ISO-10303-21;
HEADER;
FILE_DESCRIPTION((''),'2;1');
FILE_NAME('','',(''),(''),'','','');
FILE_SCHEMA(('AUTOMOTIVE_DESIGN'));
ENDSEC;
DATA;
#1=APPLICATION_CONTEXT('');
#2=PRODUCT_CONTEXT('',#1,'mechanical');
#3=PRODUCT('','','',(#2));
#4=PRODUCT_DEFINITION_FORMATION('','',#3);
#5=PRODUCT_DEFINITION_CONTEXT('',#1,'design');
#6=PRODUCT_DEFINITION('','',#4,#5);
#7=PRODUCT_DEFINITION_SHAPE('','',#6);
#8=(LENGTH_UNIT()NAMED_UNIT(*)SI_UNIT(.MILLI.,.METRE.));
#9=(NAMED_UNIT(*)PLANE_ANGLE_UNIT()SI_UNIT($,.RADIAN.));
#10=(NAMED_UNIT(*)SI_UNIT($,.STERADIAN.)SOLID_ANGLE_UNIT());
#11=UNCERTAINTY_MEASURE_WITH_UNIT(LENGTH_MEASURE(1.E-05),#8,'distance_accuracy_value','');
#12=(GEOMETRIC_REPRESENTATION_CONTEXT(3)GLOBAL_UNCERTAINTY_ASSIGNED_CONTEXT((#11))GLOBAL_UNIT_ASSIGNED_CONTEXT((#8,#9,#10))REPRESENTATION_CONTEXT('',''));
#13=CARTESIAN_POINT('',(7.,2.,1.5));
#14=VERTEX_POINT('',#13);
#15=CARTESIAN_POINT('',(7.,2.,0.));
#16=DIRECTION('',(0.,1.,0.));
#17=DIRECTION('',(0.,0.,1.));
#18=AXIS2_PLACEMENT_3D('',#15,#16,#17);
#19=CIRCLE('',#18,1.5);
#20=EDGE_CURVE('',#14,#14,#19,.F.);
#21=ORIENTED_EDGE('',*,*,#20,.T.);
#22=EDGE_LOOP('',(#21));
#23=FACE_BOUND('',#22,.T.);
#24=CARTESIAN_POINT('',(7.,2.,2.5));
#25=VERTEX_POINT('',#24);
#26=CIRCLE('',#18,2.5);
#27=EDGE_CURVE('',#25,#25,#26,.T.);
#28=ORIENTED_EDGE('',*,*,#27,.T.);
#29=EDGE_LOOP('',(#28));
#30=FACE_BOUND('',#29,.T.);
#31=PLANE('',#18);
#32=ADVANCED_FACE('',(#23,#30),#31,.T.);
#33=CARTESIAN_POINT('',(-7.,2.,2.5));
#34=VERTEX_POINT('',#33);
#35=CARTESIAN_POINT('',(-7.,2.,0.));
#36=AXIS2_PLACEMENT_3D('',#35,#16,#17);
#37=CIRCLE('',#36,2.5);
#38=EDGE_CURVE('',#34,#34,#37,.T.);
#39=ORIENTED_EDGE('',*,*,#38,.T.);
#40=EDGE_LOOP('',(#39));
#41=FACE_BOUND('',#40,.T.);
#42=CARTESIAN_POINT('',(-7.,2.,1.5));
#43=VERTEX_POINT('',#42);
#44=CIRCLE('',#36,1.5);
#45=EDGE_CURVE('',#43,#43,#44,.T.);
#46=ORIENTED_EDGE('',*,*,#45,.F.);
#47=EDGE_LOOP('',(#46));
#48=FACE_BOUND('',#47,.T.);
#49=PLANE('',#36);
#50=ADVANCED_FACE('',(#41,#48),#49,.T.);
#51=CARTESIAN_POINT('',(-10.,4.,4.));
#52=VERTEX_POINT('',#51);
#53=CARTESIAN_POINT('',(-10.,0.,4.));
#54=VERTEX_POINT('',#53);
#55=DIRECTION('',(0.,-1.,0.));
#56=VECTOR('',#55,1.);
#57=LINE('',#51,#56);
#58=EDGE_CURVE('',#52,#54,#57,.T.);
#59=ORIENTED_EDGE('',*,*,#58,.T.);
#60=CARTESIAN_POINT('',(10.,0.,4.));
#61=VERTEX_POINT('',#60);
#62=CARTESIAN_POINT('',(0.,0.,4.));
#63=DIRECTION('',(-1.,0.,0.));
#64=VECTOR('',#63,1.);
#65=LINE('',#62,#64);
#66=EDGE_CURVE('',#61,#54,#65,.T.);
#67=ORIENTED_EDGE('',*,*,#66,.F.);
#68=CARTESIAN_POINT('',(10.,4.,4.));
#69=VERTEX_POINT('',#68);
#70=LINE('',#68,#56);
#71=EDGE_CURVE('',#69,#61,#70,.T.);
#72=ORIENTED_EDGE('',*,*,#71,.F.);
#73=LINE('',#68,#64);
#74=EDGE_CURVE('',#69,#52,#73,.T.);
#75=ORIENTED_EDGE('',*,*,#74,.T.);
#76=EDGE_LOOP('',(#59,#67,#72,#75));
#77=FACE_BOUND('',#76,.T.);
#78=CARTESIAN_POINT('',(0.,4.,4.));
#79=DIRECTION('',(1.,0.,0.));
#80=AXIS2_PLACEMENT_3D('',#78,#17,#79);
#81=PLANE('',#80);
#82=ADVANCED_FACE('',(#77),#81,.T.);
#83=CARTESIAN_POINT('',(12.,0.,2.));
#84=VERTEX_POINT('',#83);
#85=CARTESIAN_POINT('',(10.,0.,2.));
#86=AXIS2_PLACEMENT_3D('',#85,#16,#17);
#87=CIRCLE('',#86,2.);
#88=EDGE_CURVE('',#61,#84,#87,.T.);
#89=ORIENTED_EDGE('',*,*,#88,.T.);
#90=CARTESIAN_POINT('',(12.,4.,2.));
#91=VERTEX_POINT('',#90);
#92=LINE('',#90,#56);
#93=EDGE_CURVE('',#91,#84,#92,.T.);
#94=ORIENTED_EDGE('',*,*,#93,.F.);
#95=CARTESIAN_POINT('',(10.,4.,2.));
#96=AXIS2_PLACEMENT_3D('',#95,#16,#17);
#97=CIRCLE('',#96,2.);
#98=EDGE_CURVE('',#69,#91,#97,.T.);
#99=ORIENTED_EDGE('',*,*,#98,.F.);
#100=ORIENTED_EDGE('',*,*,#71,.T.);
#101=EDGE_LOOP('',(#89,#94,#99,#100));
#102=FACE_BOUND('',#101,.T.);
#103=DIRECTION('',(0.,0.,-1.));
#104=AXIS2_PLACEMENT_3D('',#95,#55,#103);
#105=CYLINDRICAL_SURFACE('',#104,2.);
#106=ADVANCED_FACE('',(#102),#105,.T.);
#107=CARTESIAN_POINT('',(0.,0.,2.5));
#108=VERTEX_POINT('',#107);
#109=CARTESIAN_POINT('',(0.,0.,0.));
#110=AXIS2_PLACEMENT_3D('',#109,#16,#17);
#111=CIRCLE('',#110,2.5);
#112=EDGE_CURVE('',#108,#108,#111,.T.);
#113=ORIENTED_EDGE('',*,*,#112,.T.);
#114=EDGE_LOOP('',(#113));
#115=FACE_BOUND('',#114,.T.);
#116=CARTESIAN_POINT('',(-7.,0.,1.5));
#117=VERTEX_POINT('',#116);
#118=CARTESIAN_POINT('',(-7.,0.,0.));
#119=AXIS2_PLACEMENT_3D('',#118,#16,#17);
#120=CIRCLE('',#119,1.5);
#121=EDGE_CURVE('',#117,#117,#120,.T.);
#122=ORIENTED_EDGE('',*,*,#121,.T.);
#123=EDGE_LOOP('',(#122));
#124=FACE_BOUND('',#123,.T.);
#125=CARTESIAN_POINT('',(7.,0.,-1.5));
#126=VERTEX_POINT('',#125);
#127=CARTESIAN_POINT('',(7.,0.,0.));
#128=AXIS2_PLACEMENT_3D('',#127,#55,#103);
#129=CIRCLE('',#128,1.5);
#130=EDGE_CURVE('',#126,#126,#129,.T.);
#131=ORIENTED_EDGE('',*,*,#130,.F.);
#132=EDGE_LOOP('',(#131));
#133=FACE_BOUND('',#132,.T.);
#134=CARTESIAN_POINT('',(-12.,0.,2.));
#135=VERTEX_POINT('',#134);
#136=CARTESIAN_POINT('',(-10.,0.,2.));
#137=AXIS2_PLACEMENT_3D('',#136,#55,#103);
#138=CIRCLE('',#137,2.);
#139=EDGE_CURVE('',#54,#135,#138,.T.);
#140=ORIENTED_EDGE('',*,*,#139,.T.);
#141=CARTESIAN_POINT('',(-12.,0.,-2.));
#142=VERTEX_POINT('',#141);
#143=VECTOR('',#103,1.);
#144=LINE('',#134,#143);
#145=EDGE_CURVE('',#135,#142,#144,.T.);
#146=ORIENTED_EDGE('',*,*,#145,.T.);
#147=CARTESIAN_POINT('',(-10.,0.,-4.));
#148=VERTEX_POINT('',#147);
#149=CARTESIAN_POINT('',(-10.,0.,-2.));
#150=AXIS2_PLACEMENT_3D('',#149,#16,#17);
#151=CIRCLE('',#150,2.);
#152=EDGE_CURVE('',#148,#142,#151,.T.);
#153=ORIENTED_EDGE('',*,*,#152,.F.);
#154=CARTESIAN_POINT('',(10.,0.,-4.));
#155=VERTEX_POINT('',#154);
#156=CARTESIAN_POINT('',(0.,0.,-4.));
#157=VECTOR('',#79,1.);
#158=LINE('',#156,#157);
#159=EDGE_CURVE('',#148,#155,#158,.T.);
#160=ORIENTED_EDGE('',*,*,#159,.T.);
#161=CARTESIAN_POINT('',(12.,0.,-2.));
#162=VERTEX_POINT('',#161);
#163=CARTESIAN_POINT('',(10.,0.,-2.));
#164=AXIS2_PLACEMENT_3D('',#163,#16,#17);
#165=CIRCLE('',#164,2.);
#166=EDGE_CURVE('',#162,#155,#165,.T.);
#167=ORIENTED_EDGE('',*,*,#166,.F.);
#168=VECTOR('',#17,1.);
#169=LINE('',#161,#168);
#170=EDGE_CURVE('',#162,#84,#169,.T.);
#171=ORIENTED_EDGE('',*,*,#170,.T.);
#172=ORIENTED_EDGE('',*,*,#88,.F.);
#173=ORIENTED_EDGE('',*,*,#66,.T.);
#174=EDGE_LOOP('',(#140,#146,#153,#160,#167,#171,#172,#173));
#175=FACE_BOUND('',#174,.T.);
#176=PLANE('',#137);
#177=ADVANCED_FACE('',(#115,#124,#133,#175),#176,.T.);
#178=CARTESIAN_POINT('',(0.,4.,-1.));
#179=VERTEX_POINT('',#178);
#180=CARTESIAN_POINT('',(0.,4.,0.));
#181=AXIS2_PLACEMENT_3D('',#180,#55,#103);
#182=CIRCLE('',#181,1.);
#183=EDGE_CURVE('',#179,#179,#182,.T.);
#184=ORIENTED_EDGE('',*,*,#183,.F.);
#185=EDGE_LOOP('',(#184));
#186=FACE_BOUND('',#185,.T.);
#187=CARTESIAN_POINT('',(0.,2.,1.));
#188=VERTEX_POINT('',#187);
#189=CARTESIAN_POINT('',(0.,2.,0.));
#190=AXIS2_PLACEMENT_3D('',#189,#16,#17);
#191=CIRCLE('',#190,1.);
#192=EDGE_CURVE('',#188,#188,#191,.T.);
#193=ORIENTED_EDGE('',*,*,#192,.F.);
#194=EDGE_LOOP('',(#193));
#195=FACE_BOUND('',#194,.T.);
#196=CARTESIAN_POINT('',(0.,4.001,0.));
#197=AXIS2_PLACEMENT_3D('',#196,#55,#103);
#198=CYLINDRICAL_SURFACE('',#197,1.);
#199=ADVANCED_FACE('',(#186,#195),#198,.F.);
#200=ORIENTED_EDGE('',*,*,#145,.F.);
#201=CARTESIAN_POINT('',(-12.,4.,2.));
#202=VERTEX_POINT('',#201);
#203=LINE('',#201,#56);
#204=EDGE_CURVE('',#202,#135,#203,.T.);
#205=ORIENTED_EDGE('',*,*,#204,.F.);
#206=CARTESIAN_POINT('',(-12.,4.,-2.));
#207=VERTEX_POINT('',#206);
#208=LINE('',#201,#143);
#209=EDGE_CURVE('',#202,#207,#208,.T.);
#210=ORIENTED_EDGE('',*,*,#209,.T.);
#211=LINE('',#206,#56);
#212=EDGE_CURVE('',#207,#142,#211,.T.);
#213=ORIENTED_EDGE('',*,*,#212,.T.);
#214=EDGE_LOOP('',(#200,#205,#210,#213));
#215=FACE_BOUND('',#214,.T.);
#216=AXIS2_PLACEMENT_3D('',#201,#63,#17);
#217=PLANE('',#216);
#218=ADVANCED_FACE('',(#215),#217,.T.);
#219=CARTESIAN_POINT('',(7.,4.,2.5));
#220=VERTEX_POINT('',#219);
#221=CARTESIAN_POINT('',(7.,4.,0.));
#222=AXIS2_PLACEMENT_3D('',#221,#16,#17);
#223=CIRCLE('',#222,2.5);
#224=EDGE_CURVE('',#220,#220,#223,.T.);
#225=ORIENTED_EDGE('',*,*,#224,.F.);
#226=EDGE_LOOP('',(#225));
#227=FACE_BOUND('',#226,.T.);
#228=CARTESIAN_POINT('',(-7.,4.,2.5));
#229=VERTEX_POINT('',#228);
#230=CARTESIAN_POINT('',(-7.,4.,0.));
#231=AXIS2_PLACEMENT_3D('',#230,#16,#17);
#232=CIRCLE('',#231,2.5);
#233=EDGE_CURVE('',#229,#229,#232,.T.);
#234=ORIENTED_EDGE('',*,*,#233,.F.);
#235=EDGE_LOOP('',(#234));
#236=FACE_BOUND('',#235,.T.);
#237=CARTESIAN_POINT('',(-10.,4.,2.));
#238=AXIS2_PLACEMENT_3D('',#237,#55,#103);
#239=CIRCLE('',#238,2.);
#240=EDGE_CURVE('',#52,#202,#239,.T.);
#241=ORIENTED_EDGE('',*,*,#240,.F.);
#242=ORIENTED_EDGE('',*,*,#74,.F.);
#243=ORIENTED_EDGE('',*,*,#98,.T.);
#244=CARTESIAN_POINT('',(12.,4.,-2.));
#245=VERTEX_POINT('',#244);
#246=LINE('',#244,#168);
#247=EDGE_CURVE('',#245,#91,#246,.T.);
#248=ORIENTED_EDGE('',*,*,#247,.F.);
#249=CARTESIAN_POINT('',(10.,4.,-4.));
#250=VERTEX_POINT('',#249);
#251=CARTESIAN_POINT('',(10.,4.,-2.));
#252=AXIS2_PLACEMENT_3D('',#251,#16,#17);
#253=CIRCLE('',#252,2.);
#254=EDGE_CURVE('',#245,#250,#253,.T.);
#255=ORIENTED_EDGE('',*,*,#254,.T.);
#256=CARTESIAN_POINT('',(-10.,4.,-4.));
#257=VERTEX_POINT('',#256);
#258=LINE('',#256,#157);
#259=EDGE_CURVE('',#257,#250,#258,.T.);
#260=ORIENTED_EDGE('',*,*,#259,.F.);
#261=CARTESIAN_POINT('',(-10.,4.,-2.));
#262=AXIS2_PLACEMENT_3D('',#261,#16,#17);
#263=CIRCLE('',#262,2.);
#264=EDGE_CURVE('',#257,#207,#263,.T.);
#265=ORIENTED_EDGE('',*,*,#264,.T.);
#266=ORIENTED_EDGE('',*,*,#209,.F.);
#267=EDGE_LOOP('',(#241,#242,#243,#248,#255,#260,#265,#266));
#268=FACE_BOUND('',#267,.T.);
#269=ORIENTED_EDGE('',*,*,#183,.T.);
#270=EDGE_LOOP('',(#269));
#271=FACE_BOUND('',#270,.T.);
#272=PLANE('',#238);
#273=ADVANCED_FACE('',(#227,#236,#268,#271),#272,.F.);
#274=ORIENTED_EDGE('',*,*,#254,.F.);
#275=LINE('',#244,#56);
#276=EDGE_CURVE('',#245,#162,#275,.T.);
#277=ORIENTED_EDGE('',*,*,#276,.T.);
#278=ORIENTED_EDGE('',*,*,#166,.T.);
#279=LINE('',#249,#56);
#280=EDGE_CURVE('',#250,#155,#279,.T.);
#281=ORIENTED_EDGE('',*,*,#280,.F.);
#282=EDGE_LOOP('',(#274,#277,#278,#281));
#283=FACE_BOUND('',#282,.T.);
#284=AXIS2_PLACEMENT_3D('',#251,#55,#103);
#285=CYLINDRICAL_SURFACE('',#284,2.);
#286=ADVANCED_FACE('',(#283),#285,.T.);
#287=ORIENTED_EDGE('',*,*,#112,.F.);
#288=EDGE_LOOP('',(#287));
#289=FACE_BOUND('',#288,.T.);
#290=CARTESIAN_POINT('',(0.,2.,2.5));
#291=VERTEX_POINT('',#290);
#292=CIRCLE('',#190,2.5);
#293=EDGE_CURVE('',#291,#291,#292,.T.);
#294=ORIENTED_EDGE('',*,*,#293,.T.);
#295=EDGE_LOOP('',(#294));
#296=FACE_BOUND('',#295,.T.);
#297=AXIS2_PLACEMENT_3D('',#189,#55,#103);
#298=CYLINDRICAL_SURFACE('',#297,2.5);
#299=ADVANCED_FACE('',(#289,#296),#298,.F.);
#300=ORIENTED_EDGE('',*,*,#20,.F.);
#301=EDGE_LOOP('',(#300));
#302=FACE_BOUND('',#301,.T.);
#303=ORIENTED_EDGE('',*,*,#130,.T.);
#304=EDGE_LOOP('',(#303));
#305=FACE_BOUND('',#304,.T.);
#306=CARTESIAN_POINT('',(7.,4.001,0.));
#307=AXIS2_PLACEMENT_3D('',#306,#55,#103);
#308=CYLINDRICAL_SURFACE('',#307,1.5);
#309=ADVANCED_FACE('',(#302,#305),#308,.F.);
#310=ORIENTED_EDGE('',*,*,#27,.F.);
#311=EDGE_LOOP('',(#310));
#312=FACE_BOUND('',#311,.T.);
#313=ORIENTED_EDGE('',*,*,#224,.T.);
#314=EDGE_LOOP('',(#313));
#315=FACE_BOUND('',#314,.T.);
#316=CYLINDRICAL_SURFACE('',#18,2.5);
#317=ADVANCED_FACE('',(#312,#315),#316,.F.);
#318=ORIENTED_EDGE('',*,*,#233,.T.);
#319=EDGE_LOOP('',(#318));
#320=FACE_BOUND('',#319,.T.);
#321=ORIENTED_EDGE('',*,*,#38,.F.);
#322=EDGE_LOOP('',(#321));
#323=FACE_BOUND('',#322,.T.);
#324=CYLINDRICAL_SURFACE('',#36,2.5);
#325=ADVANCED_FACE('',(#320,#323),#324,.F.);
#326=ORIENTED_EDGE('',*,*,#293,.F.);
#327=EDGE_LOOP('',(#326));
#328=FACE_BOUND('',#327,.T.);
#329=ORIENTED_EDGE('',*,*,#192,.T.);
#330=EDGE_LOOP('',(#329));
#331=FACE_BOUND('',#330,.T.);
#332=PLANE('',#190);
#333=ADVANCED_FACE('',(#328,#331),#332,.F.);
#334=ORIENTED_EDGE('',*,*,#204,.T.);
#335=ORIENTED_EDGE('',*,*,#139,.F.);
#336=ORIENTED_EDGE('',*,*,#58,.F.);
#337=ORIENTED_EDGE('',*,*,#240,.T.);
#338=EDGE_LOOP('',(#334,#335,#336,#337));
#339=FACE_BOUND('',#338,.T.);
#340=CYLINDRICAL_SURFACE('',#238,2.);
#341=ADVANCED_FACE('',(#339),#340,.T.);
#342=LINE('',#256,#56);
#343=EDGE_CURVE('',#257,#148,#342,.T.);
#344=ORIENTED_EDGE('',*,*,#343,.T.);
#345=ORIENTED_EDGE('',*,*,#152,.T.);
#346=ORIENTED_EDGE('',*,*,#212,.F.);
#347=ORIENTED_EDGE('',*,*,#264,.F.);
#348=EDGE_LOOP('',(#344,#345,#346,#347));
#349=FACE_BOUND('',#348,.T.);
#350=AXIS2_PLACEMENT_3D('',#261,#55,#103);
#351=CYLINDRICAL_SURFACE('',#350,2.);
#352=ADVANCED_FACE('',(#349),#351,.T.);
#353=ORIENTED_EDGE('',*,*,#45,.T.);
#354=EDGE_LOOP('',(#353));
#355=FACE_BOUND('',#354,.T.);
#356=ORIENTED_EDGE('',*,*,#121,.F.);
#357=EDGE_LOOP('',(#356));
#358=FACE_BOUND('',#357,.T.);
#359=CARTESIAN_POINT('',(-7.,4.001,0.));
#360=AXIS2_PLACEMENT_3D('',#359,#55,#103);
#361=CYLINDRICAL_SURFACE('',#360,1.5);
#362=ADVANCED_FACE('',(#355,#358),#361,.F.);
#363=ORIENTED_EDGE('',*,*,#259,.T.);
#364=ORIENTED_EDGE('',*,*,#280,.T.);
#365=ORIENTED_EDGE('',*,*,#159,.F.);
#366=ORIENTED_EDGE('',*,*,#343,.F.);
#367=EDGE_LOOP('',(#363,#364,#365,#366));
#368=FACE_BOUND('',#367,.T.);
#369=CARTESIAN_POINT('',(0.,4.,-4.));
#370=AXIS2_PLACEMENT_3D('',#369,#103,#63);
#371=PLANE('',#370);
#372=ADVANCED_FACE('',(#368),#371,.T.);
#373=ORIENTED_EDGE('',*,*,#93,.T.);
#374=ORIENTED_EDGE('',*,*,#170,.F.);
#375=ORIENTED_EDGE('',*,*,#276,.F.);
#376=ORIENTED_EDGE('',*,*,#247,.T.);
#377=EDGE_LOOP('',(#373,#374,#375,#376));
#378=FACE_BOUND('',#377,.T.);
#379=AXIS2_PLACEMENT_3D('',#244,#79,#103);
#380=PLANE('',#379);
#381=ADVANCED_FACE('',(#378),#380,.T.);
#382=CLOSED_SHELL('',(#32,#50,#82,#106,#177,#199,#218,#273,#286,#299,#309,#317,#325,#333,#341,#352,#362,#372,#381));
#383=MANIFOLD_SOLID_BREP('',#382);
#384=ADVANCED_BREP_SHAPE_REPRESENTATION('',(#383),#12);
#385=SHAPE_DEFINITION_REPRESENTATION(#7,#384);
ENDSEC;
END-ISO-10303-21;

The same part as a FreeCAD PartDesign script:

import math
import FreeCAD as App
import Part
import Sketcher

V = App.Vector

doc = App.newDocument("Part")
body = doc.addObject("PartDesign::Body", "Body")

sketch1 = body.newObject("Sketcher::SketchObject", "Sketch")
sketch1.AttachmentSupport = (doc.getObject("XZ_Plane"), [""])
sketch1.MapMode = "FlatFace"
sketch1.addGeometry(Part.ArcOfCircle(Part.Circle(V(10, -2, 0), V(0, 0, 1), 2), math.radians(-90), math.radians(0)), False)
sketch1.addGeometry(Part.LineSegment(V(10, -4, 0), V(-10, -4, 0)), False)
sketch1.addGeometry(Part.ArcOfCircle(Part.Circle(V(-10, -2, 0), V(0, 0, 1), 2), math.radians(-180), math.radians(-90)), False)
sketch1.addGeometry(Part.LineSegment(V(-12, -2, 0), V(-12, 2, 0)), False)
sketch1.addGeometry(Part.ArcOfCircle(Part.Circle(V(-10, 2, 0), V(0, 0, 1), 2), math.radians(90), math.radians(180)), False)
sketch1.addGeometry(Part.LineSegment(V(-10, 4, 0), V(10, 4, 0)), False)
sketch1.addGeometry(Part.ArcOfCircle(Part.Circle(V(10, 2, 0), V(0, 0, 1), 2), math.radians(0), math.radians(90)), False)
sketch1.addGeometry(Part.LineSegment(V(12, 2, 0), V(12, -2, 0)), False)
sketch1.addConstraint(Sketcher.Constraint("Tangent", 0, 1, 1, 1))
sketch1.addConstraint(Sketcher.Constraint("Tangent", 1, 2, 2, 2))
sketch1.addConstraint(Sketcher.Constraint("Tangent", 2, 1, 3, 1))
sketch1.addConstraint(Sketcher.Constraint("Tangent", 3, 2, 4, 2))
sketch1.addConstraint(Sketcher.Constraint("Tangent", 4, 1, 5, 1))
sketch1.addConstraint(Sketcher.Constraint("Tangent", 5, 2, 6, 2))
sketch1.addConstraint(Sketcher.Constraint("Tangent", 6, 1, 7, 1))
sketch1.addConstraint(Sketcher.Constraint("Tangent", 7, 2, 0, 2))
sketch1.addConstraint(Sketcher.Constraint("Horizontal", 1))
sketch1.addConstraint(Sketcher.Constraint("Vertical", 3))
sketch1.addConstraint(Sketcher.Constraint("Horizontal", 5))
sketch1.addConstraint(Sketcher.Constraint("Vertical", 7))
sketch1.addConstraint(Sketcher.Constraint("Equal", 0, 2))
sketch1.addConstraint(Sketcher.Constraint("Equal", 2, 4))
sketch1.addConstraint(Sketcher.Constraint("Equal", 4, 6))
sketch1.addConstraint(Sketcher.Constraint("Symmetric", 0, 3, 4, 3, -1, 1))
sketch1.addConstraint(Sketcher.Constraint("Radius", 0, 2.0))
sketch1.addConstraint(Sketcher.Constraint("DistanceX", 1, 2, 1, 1, 20.0))
sketch1.addConstraint(Sketcher.Constraint("DistanceY", 3, 1, 3, 2, 4.0))
pad1 = body.newObject("PartDesign::Pad", "Pad")
pad1.Profile = sketch1
pad1.Length = 4
pad1.Reversed = True

sketch2 = body.newObject("Sketcher::SketchObject", "Sketch001")
sketch2.AttachmentSupport = (doc.getObject("XZ_Plane"), [""])
sketch2.MapMode = "FlatFace"
sketch2.addGeometry(Part.Circle(V(0, 0, 0), V(0, 0, 1), 1), False)
sketch2.addConstraint(Sketcher.Constraint("Coincident", 0, 3, -1, 1))
sketch2.addConstraint(Sketcher.Constraint("Diameter", 0, 2.0))
pocket1 = body.newObject("PartDesign::Pocket", "Pocket")
pocket1.Profile = sketch2
pocket1.Type = "UpToFirst"

sketch3 = body.newObject("Sketcher::SketchObject", "Sketch002")
sketch3.AttachmentSupport = (doc.getObject("XZ_Plane"), [""])
sketch3.MapMode = "FlatFace"
sketch3.addGeometry(Part.Circle(V(-7, 0, 0), V(0, 0, 1), 1.5), False)
sketch3.addConstraint(Sketcher.Constraint("PointOnObject", 0, 3, -1))
sketch3.addConstraint(Sketcher.Constraint("Diameter", 0, 3.0))
sketch3.addConstraint(Sketcher.Constraint("DistanceX", 0, 3, -1, 1, 7.0))
pocket2 = body.newObject("PartDesign::Pocket", "Pocket001")
pocket2.Profile = sketch3
pocket2.Type = "UpToFirst"

sketch4 = body.newObject("Sketcher::SketchObject", "Sketch003")
sketch4.AttachmentSupport = (doc.getObject("XZ_Plane"), [""])
sketch4.MapMode = "FlatFace"
sketch4.addGeometry(Part.Circle(V(7, 0, 0), V(0, 0, 1), 1.5), False)
sketch4.addConstraint(Sketcher.Constraint("PointOnObject", 0, 3, -1))
sketch4.addConstraint(Sketcher.Constraint("Diameter", 0, 3.0))
sketch4.addConstraint(Sketcher.Constraint("DistanceX", -1, 1, 0, 3, 7.0))
pocket3 = body.newObject("PartDesign::Pocket", "Pocket002")
pocket3.Profile = sketch4
pocket3.Type = "UpToFirst"

sketch5 = body.newObject("Sketcher::SketchObject", "Sketch004")
sketch5.AttachmentSupport = (doc.getObject("XZ_Plane"), [""])
sketch5.MapMode = "FlatFace"
sketch5.addGeometry(Part.Circle(V(0, 0, 0), V(0, 0, 1), 2.5), False)
sketch5.addConstraint(Sketcher.Constraint("Coincident", 0, 3, -1, 1))
sketch5.addConstraint(Sketcher.Constraint("Diameter", 0, 5.0))
pocket4 = body.newObject("PartDesign::Pocket", "Pocket003")
pocket4.Profile = sketch5
pocket4.Length = 2

sketch6 = body.newObject("Sketcher::SketchObject", "Sketch005")
sketch6.AttachmentSupport = (doc.getObject("XZ_Plane"), [""])
sketch6.MapMode = "FlatFace"
sketch6.AttachmentOffset = App.Placement(V(0, 0, -4), App.Rotation())
sketch6.addGeometry(Part.Circle(V(-7, 0, 0), V(0, 0, 1), 2.5), False)
sketch6.addGeometry(Part.Circle(V(7, 0, 0), V(0, 0, 1), 2.5), False)
sketch6.addConstraint(Sketcher.Constraint("Equal", 0, 1))
sketch6.addConstraint(Sketcher.Constraint("Symmetric", 0, 3, 1, 3, -1, 1))
sketch6.addConstraint(Sketcher.Constraint("PointOnObject", 0, 3, -1))
sketch6.addConstraint(Sketcher.Constraint("Diameter", 0, 5.0))
sketch6.addConstraint(Sketcher.Constraint("DistanceX", 0, 3, -1, 1, 7.0))
pocket5 = body.newObject("PartDesign::Pocket", "Pocket004")
pocket5.Profile = sketch6
pocket5.Length = 2
pocket5.Reversed = True

doc.recompute()
